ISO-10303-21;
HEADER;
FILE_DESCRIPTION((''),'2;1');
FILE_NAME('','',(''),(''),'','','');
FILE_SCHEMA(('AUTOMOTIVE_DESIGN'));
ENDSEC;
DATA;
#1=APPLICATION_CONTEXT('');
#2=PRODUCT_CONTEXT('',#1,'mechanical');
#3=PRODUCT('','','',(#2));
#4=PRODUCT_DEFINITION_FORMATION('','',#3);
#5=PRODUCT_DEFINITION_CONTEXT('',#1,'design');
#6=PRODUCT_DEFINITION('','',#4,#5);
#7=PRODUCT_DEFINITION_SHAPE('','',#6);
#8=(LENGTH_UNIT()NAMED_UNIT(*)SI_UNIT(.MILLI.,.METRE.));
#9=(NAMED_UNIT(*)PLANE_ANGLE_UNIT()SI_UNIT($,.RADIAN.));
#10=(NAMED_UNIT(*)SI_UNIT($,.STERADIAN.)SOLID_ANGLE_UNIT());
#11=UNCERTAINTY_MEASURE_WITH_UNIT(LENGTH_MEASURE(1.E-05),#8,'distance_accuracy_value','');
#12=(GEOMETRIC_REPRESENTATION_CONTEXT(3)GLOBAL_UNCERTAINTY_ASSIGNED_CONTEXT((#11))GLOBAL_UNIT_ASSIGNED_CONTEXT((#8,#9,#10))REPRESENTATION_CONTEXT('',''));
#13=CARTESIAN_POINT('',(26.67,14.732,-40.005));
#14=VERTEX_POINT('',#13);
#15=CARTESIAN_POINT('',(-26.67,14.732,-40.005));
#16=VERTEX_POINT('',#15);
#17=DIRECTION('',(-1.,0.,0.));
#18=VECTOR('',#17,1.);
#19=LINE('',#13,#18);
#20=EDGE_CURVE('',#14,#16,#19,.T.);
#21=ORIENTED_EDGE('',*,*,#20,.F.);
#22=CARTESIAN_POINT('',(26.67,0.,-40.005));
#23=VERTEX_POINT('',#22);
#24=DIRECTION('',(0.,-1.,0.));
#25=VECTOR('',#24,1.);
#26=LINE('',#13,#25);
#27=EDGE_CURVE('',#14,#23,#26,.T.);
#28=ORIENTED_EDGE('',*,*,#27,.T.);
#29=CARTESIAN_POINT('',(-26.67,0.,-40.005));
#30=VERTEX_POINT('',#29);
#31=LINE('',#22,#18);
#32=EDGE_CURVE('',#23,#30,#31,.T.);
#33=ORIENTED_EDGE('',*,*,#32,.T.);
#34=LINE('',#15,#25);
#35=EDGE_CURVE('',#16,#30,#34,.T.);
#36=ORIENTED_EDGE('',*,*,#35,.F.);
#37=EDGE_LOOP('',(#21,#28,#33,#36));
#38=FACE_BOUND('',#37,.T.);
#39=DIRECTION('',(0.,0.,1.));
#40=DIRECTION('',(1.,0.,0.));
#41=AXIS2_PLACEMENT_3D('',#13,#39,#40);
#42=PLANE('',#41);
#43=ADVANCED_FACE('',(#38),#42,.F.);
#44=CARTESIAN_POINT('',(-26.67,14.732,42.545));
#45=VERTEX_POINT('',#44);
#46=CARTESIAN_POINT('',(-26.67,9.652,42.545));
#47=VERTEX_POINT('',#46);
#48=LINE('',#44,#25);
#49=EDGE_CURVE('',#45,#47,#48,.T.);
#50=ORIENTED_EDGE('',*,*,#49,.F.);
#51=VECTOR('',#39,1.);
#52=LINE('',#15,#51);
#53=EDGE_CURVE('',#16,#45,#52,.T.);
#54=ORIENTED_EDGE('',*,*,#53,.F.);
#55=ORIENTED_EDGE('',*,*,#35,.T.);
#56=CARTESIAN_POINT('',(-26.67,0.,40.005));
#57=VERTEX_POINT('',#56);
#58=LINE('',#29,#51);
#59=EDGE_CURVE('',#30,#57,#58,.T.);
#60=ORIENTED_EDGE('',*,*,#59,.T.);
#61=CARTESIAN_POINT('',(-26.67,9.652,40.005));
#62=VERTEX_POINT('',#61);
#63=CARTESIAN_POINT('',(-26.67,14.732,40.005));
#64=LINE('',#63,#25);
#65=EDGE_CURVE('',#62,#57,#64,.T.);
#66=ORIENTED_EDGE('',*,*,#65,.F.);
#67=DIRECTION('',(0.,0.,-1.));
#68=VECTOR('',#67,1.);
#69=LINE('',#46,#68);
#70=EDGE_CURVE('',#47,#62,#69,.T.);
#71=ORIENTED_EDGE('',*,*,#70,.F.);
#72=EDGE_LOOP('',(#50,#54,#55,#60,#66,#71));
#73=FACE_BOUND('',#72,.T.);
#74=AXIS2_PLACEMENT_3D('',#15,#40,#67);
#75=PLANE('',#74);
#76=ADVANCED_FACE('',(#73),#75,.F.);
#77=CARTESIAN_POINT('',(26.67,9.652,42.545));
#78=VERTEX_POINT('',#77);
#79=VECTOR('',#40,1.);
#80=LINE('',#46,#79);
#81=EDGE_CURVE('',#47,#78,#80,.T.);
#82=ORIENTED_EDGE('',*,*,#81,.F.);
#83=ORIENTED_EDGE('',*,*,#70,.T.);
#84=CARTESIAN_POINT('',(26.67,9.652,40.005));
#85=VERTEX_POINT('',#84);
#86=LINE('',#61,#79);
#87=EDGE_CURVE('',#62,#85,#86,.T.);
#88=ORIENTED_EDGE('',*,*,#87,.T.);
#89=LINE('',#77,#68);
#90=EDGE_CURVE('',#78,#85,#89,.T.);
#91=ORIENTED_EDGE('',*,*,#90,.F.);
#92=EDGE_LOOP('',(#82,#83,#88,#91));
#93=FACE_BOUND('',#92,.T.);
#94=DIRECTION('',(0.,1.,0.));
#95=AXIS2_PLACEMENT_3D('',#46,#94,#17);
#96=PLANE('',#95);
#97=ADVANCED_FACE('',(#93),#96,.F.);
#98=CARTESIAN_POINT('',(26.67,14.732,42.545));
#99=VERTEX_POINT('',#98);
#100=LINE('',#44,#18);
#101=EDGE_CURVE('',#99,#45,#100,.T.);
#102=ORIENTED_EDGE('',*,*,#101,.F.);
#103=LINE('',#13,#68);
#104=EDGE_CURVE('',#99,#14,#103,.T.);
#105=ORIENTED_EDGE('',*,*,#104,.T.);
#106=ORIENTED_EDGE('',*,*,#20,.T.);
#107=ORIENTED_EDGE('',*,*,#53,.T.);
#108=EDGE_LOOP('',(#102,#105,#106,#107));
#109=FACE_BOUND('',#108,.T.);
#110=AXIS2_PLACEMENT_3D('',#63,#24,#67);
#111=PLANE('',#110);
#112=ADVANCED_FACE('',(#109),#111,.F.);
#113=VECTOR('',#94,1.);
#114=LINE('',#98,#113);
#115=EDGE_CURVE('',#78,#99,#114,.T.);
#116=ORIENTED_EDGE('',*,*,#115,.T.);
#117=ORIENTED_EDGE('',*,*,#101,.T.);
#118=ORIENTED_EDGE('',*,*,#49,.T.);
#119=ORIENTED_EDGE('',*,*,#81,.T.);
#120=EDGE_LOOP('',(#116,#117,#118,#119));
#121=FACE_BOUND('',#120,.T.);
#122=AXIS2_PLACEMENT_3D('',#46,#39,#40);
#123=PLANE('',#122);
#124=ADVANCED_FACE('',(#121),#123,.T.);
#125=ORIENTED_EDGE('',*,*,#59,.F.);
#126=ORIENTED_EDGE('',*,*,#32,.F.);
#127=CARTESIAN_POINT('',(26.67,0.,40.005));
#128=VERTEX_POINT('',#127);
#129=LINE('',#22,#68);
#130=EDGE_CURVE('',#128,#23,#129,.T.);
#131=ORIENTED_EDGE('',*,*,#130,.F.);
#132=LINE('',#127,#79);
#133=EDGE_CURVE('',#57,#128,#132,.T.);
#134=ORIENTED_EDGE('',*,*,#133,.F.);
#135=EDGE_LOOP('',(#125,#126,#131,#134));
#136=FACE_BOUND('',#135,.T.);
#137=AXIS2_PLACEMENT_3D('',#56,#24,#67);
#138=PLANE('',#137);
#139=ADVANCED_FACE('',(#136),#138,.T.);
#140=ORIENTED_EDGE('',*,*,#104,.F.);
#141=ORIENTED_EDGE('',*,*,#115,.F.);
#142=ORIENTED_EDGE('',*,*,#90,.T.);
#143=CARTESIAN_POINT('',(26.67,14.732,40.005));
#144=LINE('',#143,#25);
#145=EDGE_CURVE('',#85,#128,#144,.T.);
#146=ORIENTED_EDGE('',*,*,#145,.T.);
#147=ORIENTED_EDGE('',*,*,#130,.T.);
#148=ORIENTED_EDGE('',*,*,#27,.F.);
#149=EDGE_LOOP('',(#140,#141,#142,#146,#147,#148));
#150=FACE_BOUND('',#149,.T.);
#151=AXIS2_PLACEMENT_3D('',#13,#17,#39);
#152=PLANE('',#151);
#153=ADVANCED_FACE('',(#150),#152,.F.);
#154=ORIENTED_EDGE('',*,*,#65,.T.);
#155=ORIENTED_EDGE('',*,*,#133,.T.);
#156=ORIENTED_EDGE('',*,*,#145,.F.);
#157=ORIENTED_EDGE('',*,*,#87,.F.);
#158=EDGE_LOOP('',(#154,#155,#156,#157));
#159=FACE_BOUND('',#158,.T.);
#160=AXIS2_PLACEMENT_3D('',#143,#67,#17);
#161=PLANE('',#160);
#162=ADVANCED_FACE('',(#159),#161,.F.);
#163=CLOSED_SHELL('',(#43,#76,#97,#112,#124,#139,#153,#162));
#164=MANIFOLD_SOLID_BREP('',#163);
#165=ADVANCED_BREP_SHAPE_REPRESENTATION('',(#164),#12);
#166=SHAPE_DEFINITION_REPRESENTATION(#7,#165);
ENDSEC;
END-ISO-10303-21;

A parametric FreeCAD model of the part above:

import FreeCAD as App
import Part
import Sketcher
from FreeCAD import Vector
Q = App.Units.Quantity

doc = App.newDocument("Part")
params = doc.addObject("Spreadsheet::Sheet", "Params")
for row, (alias, value) in enumerate([
    ("sketch1_width", "2.1 in"),
    ("sketch1_height", "3.15 in"),
    ("pad1_length", "0.58 in"),
    ("sketch2_width", "2.1 in"),
    ("sketch2_height", "0.2 in"),
    ("pad2_length", "0.1 in"),
], start=1):
    params.set(f"A{row}", alias)
    params.set(f"B{row}", "=" + value)
    params.setAlias(f"B{row}", alias)

body = doc.addObject("PartDesign::Body", "Body")

sketch1 = body.newObject("Sketcher::SketchObject", "Sketch")
sketch1.AttachmentSupport = (doc.getObject("XZ_Plane"), [""])
sketch1.MapMode = "FlatFace"
sketch1.addGeometry([
    Part.LineSegment(Vector(-27, -40, 0), Vector(-27, 40, 0)),
    Part.LineSegment(Vector(-27, 40, 0), Vector(27, 40, 0)),
    Part.LineSegment(Vector(27, 40, 0), Vector(27, -40, 0)),
    Part.LineSegment(Vector(27, -40, 0), Vector(-27, -40, 0)),
], False)
sketch1.addConstraint([
    Sketcher.Constraint("Coincident", 0, 2, 1, 1),
    Sketcher.Constraint("Coincident", 1, 2, 2, 1),
    Sketcher.Constraint("Coincident", 2, 2, 3, 1),
    Sketcher.Constraint("Coincident", 3, 2, 0, 1),
    Sketcher.Constraint("Vertical", 0),
    Sketcher.Constraint("Horizontal", 1),
    Sketcher.Constraint("Vertical", 2),
    Sketcher.Constraint("Horizontal", 3),
    Sketcher.Constraint("Symmetric", 0, 2, 2, 2, -1, 1),
    Sketcher.Constraint("DistanceX", 1, 1, 1, 2, Q("2.1 in")),
    Sketcher.Constraint("DistanceY", 0, 1, 0, 2, Q("3.15 in")),
])
sketch1.setExpression("Constraints[9]", "Params.sketch1_width")
sketch1.setExpression("Constraints[10]", "Params.sketch1_height")
pad1 = body.newObject("PartDesign::Pad", "Pad")
pad1.Profile = sketch1
pad1.setExpression("Length", "Params.pad1_length")
pad1.Reversed = True

sketch2 = body.newObject("Sketcher::SketchObject", "Sketch001")
sketch2.AttachmentSupport = (doc.getObject("XY_Plane"), [""])
sketch2.MapMode = "FlatFace"
sketch2.AttachmentOffset = App.Placement(Vector(0, 0, 1.575 * 25.4), App.Rotation())
sketch2.addGeometry([
    Part.LineSegment(Vector(-27, 15, 0), Vector(-27, 10, 0)),
    Part.LineSegment(Vector(-27, 10, 0), Vector(27, 10, 0)),
    Part.LineSegment(Vector(27, 10, 0), Vector(27, 15, 0)),
    Part.LineSegment(Vector(27, 15, 0), Vector(-27, 15, 0)),
], False)
sketch2.addConstraint([
    Sketcher.Constraint("Coincident", 0, 2, 1, 1),
    Sketcher.Constraint("Coincident", 1, 2, 2, 1),
    Sketcher.Constraint("Coincident", 2, 2, 3, 1),
    Sketcher.Constraint("Coincident", 3, 2, 0, 1),
    Sketcher.Constraint("Vertical", 0),
    Sketcher.Constraint("Horizontal", 1),
    Sketcher.Constraint("Vertical", 2),
    Sketcher.Constraint("Horizontal", 3),
    Sketcher.Constraint("DistanceX", 1, 1, 1, 2, Q("2.1 in")),
    Sketcher.Constraint("DistanceY", 0, 2, 0, 1, Q("0.2 in")),
    Sketcher.Constraint("DistanceX", 0, 2, -1, 1, Q("1.05 in")),
    Sketcher.Constraint("DistanceY", -1, 1, 0, 2, Q("0.38 in")),
])
sketch2.setExpression("Constraints[8]", "Params.sketch2_width")
sketch2.setExpression("Constraints[9]", "Params.sketch2_height")
pad2 = body.newObject("PartDesign::Pad", "Pad001")
pad2.Profile = sketch2
pad2.setExpression("Length", "Params.pad2_length")

doc.recompute()
